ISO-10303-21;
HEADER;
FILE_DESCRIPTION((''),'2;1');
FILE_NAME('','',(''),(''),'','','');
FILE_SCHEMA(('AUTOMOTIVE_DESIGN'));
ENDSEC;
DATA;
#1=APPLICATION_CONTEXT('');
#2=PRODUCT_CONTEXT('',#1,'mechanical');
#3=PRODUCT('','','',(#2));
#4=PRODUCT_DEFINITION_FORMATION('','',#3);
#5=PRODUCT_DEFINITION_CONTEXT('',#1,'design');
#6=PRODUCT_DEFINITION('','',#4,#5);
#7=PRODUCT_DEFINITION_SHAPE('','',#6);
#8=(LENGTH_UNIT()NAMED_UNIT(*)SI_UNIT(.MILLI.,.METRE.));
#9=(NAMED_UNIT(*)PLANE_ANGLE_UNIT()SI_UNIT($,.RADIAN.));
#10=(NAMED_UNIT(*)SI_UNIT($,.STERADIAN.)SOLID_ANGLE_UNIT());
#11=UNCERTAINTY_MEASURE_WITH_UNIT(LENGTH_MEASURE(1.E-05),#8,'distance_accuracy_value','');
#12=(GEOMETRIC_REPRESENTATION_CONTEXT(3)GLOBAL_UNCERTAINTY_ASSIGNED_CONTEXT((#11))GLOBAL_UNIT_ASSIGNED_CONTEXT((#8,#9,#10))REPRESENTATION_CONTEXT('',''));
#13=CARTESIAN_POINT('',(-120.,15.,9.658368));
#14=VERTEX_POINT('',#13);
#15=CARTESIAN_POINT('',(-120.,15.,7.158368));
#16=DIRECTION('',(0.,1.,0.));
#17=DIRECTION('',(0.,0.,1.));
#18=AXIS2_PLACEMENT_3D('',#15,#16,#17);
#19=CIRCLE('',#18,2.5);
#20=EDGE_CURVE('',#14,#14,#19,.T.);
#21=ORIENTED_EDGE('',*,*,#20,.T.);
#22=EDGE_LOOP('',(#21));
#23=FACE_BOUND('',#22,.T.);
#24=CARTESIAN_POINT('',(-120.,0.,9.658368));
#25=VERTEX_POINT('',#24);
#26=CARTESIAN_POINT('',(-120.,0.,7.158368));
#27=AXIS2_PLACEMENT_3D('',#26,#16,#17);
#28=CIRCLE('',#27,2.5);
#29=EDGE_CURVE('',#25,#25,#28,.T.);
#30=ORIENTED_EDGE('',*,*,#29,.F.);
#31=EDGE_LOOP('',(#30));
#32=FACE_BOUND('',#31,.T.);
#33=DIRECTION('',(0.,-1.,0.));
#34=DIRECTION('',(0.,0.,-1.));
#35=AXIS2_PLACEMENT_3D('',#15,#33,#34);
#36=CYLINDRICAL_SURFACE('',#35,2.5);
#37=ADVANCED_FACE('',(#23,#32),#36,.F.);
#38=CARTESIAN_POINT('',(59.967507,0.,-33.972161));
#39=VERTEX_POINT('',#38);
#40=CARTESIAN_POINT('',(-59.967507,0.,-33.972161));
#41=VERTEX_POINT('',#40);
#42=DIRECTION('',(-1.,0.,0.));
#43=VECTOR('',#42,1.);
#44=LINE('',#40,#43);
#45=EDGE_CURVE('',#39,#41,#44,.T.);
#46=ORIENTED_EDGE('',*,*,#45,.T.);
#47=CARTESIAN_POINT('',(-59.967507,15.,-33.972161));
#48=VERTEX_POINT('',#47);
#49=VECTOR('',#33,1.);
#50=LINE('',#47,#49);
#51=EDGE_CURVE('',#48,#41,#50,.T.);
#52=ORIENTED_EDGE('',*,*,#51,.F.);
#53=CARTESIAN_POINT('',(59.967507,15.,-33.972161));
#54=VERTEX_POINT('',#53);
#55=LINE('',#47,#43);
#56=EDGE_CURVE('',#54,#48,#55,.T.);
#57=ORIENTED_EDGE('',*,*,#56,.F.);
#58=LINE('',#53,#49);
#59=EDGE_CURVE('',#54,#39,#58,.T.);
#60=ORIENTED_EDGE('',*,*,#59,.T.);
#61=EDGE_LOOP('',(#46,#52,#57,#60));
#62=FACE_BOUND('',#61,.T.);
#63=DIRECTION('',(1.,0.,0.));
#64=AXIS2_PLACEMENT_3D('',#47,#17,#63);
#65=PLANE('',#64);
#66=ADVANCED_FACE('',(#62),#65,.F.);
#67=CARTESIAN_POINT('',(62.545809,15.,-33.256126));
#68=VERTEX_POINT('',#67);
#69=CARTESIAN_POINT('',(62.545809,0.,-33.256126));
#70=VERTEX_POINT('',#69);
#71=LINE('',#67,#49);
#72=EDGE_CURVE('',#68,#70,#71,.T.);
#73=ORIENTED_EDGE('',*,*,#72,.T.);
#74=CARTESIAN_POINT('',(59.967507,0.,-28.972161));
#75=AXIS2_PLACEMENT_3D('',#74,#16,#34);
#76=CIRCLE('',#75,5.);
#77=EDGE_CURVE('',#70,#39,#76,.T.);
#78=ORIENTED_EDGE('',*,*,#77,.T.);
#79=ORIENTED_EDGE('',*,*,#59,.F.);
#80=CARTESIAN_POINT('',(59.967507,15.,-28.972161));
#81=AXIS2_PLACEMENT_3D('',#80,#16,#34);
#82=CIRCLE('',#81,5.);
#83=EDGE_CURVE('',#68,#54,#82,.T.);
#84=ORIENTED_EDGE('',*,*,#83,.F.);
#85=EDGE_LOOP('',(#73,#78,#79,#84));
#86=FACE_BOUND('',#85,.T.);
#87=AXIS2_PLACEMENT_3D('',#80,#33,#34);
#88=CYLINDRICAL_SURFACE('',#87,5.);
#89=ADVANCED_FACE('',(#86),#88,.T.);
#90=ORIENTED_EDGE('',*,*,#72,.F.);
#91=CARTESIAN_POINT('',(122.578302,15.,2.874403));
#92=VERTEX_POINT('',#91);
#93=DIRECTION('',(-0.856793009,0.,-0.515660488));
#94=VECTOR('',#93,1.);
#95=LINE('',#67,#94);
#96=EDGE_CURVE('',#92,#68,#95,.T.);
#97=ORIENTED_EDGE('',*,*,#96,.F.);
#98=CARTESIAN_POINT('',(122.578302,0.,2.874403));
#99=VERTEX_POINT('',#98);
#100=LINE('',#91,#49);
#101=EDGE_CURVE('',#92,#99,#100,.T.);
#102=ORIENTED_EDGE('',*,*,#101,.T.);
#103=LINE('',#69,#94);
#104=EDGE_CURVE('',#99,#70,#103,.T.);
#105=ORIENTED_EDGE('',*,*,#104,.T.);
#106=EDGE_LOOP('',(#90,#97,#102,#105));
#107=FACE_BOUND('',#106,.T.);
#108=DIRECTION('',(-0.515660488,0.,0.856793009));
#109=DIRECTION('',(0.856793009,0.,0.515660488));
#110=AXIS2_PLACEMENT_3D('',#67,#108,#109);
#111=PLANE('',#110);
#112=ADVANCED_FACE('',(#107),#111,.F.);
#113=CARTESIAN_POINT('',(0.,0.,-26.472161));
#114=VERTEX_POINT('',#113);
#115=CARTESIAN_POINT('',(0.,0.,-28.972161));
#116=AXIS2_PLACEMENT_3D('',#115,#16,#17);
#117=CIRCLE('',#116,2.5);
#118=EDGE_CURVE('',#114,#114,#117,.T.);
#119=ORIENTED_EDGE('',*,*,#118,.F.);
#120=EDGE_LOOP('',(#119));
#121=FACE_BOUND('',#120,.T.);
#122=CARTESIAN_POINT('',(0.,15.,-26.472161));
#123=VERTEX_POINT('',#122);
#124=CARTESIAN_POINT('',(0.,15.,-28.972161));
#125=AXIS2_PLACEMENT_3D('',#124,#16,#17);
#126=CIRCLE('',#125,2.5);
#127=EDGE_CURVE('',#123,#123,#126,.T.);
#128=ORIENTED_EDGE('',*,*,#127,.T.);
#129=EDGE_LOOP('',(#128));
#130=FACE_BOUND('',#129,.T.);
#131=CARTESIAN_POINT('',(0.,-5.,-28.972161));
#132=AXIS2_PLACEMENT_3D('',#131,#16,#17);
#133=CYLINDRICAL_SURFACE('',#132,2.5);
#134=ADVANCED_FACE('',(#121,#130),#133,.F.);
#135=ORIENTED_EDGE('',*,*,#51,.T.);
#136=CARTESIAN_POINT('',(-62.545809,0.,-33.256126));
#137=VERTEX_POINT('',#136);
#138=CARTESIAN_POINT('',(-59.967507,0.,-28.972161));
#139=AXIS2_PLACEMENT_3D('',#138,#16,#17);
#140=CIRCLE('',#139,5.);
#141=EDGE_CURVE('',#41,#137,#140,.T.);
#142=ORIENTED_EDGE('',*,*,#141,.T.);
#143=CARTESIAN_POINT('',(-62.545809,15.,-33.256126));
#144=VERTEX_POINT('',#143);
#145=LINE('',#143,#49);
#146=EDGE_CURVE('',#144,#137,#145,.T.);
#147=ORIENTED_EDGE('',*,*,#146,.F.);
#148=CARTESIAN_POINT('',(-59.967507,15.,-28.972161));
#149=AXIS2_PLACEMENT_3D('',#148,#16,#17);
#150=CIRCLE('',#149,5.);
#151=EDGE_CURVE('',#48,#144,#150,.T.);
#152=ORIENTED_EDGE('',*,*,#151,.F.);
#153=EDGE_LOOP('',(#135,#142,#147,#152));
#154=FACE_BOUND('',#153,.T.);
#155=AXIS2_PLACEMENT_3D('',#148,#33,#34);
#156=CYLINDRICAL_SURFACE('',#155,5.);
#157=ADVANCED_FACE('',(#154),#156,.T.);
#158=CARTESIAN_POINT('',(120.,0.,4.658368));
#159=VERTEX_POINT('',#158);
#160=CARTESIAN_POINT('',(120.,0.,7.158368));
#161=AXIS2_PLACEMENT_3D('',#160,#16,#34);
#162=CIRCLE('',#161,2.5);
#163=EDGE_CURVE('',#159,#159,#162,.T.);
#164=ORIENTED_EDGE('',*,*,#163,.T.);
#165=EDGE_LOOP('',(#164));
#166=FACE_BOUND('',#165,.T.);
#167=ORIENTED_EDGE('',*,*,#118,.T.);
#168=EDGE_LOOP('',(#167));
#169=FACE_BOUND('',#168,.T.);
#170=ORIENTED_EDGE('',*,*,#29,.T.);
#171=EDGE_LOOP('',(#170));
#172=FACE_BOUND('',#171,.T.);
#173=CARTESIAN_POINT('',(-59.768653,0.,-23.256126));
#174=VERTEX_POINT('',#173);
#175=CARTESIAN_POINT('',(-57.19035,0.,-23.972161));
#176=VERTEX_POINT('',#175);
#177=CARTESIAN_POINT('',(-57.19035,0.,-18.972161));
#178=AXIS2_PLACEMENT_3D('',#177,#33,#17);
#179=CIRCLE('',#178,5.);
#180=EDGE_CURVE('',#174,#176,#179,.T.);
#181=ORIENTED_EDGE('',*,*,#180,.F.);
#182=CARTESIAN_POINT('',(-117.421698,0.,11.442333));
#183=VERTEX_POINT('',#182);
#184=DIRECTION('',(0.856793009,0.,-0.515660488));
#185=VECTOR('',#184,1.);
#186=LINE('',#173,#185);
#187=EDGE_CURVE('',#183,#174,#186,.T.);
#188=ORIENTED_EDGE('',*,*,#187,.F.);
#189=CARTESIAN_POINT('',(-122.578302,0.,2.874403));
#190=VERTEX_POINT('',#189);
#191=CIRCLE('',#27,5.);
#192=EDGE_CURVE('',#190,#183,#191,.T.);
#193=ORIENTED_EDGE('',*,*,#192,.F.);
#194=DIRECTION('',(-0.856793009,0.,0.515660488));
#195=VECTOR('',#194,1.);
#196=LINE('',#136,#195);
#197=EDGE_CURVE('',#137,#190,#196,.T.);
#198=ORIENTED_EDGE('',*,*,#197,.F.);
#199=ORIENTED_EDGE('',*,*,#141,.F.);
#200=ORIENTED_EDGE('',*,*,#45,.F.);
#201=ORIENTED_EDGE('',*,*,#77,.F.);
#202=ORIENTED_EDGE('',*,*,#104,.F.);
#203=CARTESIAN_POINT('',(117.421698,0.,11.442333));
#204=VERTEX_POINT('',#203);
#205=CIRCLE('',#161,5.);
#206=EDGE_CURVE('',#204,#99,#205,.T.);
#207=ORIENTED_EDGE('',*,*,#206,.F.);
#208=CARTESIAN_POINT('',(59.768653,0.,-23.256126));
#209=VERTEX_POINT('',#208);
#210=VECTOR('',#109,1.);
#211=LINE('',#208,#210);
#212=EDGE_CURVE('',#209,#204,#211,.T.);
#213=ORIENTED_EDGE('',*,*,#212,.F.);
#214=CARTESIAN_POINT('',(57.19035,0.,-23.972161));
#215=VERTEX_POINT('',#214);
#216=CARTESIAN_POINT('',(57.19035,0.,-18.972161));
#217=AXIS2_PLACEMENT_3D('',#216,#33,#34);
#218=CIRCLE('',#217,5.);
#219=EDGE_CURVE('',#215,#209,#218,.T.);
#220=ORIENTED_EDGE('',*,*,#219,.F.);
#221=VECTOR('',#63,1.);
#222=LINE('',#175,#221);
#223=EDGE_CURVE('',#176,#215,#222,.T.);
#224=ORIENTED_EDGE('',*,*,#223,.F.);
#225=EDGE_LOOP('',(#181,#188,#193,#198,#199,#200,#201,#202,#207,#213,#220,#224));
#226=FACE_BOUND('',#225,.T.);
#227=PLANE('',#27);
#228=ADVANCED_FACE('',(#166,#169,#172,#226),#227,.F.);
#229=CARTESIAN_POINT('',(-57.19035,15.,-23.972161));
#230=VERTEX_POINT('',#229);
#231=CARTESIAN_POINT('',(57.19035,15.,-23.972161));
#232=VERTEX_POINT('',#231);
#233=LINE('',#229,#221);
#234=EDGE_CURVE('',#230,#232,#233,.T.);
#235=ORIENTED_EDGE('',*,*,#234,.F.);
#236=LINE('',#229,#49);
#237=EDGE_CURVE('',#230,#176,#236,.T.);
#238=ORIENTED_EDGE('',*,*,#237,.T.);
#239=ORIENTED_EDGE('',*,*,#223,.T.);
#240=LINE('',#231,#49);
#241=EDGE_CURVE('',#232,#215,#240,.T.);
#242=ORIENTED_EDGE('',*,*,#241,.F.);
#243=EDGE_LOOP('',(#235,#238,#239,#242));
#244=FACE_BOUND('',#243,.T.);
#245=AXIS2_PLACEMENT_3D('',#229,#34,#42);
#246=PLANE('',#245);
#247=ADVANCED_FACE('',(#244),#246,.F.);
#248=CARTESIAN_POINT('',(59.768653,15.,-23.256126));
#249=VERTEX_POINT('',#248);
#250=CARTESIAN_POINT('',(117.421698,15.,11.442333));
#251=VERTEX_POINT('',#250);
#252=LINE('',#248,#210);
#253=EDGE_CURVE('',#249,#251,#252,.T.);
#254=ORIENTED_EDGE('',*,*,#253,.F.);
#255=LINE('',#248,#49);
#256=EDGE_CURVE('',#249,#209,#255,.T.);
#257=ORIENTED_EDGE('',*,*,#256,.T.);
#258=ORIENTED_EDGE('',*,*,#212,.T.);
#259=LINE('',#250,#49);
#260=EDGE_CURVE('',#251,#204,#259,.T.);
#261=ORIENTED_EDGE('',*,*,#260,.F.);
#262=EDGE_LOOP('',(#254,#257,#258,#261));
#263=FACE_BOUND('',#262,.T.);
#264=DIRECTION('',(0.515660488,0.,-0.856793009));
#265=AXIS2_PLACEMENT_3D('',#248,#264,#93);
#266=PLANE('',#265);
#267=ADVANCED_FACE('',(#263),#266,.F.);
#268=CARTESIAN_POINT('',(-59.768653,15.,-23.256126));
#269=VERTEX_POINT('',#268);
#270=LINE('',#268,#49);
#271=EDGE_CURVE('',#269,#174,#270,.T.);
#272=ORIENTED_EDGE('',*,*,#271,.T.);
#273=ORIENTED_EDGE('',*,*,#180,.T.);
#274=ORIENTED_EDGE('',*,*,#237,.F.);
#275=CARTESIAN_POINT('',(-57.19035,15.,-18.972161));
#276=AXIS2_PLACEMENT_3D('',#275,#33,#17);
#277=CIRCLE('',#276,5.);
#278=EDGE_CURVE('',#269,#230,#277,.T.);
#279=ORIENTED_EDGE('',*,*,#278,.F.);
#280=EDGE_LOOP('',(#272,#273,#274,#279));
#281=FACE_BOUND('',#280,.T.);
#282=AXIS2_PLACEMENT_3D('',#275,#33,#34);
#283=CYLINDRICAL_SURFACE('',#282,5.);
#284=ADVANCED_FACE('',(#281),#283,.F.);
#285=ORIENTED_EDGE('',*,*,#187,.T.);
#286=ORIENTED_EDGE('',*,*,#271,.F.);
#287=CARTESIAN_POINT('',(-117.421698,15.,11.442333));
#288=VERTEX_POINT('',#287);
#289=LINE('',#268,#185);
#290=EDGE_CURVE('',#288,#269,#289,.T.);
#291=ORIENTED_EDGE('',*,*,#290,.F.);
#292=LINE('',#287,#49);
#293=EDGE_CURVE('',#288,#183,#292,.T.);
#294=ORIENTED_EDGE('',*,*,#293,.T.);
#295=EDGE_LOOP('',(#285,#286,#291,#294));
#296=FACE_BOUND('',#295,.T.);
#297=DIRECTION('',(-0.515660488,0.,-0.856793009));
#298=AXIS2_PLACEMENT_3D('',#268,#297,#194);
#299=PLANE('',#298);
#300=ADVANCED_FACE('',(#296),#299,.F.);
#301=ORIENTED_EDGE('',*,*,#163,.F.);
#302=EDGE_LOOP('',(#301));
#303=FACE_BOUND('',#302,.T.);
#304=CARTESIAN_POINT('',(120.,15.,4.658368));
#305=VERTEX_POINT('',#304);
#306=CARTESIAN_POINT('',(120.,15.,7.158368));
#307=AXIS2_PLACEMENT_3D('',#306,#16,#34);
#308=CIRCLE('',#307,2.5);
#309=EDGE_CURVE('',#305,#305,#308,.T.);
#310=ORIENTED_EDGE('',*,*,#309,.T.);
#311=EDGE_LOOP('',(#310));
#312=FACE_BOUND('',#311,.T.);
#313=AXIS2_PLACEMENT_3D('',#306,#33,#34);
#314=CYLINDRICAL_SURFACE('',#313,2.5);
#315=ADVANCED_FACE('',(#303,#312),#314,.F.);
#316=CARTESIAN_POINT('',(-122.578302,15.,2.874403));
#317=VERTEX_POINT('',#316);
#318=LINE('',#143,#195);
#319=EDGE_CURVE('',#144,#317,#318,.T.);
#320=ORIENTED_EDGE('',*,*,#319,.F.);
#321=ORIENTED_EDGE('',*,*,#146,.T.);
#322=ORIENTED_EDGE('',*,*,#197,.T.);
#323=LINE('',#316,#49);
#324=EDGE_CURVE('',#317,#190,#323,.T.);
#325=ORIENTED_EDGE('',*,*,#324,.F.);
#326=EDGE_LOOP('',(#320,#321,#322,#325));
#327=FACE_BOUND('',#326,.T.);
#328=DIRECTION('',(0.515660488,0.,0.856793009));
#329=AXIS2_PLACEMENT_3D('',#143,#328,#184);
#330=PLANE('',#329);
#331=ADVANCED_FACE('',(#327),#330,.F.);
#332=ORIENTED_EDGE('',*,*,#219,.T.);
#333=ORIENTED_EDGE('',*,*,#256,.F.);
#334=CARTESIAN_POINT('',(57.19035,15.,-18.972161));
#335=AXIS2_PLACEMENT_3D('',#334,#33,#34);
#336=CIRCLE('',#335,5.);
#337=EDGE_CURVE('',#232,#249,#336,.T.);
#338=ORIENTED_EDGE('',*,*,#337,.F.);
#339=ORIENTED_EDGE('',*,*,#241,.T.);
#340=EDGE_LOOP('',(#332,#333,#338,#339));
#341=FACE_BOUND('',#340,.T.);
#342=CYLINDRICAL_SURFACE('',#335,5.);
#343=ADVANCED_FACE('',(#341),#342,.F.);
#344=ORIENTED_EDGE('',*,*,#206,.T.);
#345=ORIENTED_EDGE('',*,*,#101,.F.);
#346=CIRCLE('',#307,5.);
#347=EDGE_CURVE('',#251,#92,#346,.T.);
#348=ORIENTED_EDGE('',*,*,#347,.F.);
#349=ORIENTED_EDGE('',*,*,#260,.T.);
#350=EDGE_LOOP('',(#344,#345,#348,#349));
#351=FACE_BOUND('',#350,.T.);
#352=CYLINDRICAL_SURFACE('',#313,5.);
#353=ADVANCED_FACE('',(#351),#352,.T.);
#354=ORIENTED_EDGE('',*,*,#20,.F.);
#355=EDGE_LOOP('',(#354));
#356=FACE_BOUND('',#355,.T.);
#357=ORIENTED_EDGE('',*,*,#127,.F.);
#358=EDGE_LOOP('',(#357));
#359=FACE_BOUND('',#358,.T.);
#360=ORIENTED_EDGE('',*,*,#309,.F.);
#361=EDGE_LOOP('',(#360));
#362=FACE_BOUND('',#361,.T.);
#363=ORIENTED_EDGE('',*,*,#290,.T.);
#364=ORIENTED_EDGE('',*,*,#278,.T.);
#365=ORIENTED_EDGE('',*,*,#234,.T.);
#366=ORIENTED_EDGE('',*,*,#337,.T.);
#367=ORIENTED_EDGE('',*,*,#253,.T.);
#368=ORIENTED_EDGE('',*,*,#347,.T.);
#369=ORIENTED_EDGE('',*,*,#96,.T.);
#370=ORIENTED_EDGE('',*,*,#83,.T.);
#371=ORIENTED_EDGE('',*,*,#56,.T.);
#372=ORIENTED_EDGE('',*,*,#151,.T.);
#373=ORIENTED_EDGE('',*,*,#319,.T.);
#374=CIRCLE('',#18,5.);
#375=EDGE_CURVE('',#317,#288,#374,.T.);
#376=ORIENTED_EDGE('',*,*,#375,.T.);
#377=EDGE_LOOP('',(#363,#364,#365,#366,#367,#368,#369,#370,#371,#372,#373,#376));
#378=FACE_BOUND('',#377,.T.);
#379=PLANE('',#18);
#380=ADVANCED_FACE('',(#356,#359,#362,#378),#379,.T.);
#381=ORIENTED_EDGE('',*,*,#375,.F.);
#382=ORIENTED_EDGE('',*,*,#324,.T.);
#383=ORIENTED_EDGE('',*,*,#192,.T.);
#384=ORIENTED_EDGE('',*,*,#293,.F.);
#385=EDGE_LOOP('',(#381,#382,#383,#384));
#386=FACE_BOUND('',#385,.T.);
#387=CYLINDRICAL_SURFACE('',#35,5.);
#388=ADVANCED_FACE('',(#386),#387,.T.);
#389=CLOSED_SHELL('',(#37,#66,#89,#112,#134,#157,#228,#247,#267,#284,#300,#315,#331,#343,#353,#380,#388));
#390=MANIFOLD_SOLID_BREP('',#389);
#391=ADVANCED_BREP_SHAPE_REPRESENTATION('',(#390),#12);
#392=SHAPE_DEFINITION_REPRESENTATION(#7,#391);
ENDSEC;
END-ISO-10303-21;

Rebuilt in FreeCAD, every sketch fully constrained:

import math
import FreeCAD as App
import Part
import Sketcher

doc = App.newDocument("Part")
body = doc.addObject("PartDesign::Body", "Body")

# Sketch on XZ plane
sketch1 = doc.addObject("Sketcher::SketchObject", "Sketch")
body.addObject(sketch1)
sketch1.AttachmentSupport = (doc.XZ_Plane, [""])
sketch1.MapMode = "FlatFace"
sketch1.addGeometry(Part.LineSegment(App.Vector(59.967507, -33.972161, 0), App.Vector(-59.967507, -33.972161, 0)), False)
sketch1.addGeometry(Part.ArcOfCircle(Part.Circle(App.Vector(-59.967507, -28.972161, 0), App.Vector(0, 0, 1), 5), math.radians(-121.041613), math.radians(-90)), False)
sketch1.addGeometry(Part.LineSegment(App.Vector(-62.545809, -33.256126, 0), App.Vector(-122.578302, 2.874403, 0)), False)
sketch1.addGeometry(Part.ArcOfCircle(Part.Circle(App.Vector(-120, 7.158368, 0), App.Vector(0, 0, 1), 5), math.radians(58.958387), math.radians(238.958387)), False)
sketch1.addGeometry(Part.LineSegment(App.Vector(-117.421698, 11.442333, 0), App.Vector(-59.768653, -23.256126, 0)), False)
sketch1.addGeometry(Part.ArcOfCircle(Part.Circle(App.Vector(-57.19035, -18.972161, 0), App.Vector(0, 0, 1), 5), math.radians(-121.041613), math.radians(-90)), False)
sketch1.addGeometry(Part.LineSegment(App.Vector(-57.19035, -23.972161, 0), App.Vector(57.19035, -23.972161, 0)), False)
sketch1.addGeometry(Part.ArcOfCircle(Part.Circle(App.Vector(57.19035, -18.972161, 0), App.Vector(0, 0, 1), 5), math.radians(-90), math.radians(-58.958387)), False)
sketch1.addGeometry(Part.LineSegment(App.Vector(59.768653, -23.256126, 0), App.Vector(117.421698, 11.442333, 0)), False)
sketch1.addGeometry(Part.ArcOfCircle(Part.Circle(App.Vector(120, 7.158368, 0), App.Vector(0, 0, 1), 5), math.radians(-58.958387), math.radians(121.041613)), False)
sketch1.addGeometry(Part.LineSegment(App.Vector(122.578302, 2.874403, 0), App.Vector(62.545809, -33.256126, 0)), False)
sketch1.addGeometry(Part.ArcOfCircle(Part.Circle(App.Vector(59.967507, -28.972161, 0), App.Vector(0, 0, 1), 5), math.radians(-90), math.radians(-58.958387)), False)
sketch1.addGeometry(Part.Circle(App.Vector(120, 7.158368, 0), App.Vector(0, 0, 1), 2.5), False)
sketch1.addGeometry(Part.Circle(App.Vector(-120, 7.158368, 0), App.Vector(0, 0, 1), 2.5), False)
sketch1.addConstraint(Sketcher.Constraint("Tangent", 0, 2, 1, 2))
sketch1.addConstraint(Sketcher.Constraint("Tangent", 1, 1, 2, 1))
sketch1.addConstraint(Sketcher.Constraint("Tangent", 2, 2, 3, 2))
sketch1.addConstraint(Sketcher.Constraint("Tangent", 3, 1, 4, 1))
sketch1.addConstraint(Sketcher.Constraint("Tangent", 4, 2, 5, 1))
sketch1.addConstraint(Sketcher.Constraint("Tangent", 5, 2, 6, 1))
sketch1.addConstraint(Sketcher.Constraint("Tangent", 6, 2, 7, 1))
sketch1.addConstraint(Sketcher.Constraint("Tangent", 7, 2, 8, 1))
sketch1.addConstraint(Sketcher.Constraint("Tangent", 8, 2, 9, 2))
sketch1.addConstraint(Sketcher.Constraint("Tangent", 9, 1, 10, 1))
sketch1.addConstraint(Sketcher.Constraint("Tangent", 10, 2, 11, 2))
sketch1.addConstraint(Sketcher.Constraint("Tangent", 11, 1, 0, 1))
sketch1.addConstraint(Sketcher.Constraint("Horizontal", 0))
sketch1.addConstraint(Sketcher.Constraint("Horizontal", 6))
sketch1.addConstraint(Sketcher.Constraint("Coincident", 12, 3, 9, 3))
sketch1.addConstraint(Sketcher.Constraint("Coincident", 13, 3, 3, 3))
sketch1.addConstraint(Sketcher.Constraint("Equal", 1, 3))
sketch1.addConstraint(Sketcher.Constraint("Equal", 3, 5))
sketch1.addConstraint(Sketcher.Constraint("Equal", 5, 7))
sketch1.addConstraint(Sketcher.Constraint("Equal", 7, 9))
sketch1.addConstraint(Sketcher.Constraint("Equal", 9, 11))
sketch1.addConstraint(Sketcher.Constraint("Equal", 12, 13))
sketch1.addConstraint(Sketcher.Constraint("Symmetric", 3, 3, 9, 3, -2))
sketch1.addConstraint(Sketcher.Constraint("Parallel", 2, 4))
sketch1.addConstraint(Sketcher.Constraint("Parallel", 8, 10))
sketch1.addConstraint(Sketcher.Constraint("Horizontal", 4, 2, 7, 2))
sketch1.addConstraint(Sketcher.Constraint("Diameter", 12, 5.0))
sketch1.addConstraint(Sketcher.Constraint("Radius", 1, 5.0))
sketch1.addConstraint(Sketcher.Constraint("DistanceX", 3, 3, -1, 1, 120.0))
sketch1.addConstraint(Sketcher.Constraint("DistanceY", 1, 3, 5, 3, 10.0))
sketch1.addConstraint(Sketcher.Constraint("DistanceX", 6, 1, 6, 2, 114.3807))
sketch1.addConstraint(Sketcher.Constraint("Distance", 4, 67.28935))
sketch1.addConstraint(Sketcher.Constraint("DistanceY", 1, 3, -1, 1, 28.972161))
pad1 = doc.addObject("PartDesign::Pad", "Pad")
body.addObject(pad1)
pad1.Profile = sketch1
pad1.Length = 15
pad1.Reversed = True

# Sketch on XZ plane
sketch2 = doc.addObject("Sketcher::SketchObject", "Sketch001")
body.addObject(sketch2)
sketch2.AttachmentSupport = (doc.XZ_Plane, [""])
sketch2.MapMode = "FlatFace"
sketch2.AttachmentOffset = App.Placement(App.Vector(0, 0, -15), App.Rotation())
sketch2.addGeometry(Part.Circle(App.Vector(0, -28.972161, 0), App.Vector(0, 0, 1), 2.5), False)
sketch2.addConstraint(Sketcher.Constraint("PointOnObject", 0, 3, -2))
sketch2.addConstraint(Sketcher.Constraint("Diameter", 0, 5.0))
sketch2.addConstraint(Sketcher.Constraint("DistanceY", 0, 3, -1, 1, 28.972161))
pocket1 = doc.addObject("PartDesign::Pocket", "Pocket")
body.addObject(pocket1)
pocket1.Profile = sketch2
pocket1.Length = 20
pocket1.Reversed = True

doc.recompute()
